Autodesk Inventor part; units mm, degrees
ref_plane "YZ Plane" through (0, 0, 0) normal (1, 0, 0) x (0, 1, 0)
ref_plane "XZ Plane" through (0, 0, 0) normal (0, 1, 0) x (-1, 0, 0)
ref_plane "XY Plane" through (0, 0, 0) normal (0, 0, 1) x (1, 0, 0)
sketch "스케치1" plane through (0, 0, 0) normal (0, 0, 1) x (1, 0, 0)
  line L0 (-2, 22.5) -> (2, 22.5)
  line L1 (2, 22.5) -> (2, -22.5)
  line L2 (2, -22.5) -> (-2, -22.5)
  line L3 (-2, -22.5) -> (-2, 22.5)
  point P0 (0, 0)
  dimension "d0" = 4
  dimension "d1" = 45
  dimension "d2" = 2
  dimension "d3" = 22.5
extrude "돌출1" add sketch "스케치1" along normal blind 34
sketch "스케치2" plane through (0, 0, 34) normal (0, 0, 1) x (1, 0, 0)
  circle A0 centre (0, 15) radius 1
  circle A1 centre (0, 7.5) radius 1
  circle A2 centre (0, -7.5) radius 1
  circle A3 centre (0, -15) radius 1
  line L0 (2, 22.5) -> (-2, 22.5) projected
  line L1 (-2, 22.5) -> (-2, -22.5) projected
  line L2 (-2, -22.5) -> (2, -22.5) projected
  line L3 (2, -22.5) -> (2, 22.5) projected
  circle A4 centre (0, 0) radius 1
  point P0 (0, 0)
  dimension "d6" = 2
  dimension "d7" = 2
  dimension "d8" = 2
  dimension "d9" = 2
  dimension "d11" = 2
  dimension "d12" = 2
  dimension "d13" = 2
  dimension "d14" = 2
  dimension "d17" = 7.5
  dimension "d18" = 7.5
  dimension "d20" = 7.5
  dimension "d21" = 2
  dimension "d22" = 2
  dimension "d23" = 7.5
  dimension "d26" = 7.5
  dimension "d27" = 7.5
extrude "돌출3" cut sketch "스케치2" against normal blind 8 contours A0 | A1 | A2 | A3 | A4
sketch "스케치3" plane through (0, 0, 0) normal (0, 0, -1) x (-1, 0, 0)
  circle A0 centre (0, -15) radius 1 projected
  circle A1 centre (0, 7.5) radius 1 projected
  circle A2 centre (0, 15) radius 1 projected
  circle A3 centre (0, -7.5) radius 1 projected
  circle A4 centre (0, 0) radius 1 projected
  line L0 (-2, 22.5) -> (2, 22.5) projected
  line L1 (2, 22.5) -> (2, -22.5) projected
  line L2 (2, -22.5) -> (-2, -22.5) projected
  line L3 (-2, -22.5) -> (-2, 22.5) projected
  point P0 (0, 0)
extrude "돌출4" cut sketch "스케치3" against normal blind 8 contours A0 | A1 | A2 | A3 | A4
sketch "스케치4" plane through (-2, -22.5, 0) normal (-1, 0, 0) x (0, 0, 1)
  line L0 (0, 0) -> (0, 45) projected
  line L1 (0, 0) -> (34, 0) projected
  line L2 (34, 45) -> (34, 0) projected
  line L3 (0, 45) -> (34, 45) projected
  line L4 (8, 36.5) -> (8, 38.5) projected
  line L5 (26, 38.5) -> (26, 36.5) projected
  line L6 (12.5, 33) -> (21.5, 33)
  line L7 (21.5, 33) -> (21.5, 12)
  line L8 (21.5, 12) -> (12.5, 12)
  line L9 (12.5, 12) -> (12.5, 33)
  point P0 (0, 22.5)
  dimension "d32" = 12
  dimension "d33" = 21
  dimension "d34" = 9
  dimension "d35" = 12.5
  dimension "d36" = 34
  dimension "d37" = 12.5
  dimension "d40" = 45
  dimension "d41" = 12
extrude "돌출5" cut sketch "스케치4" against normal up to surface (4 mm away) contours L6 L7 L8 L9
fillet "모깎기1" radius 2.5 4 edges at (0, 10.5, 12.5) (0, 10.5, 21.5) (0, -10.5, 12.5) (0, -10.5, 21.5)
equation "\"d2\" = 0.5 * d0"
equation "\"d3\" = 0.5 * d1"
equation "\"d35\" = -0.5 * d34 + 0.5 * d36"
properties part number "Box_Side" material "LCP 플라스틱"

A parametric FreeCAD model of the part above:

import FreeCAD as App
import Part
import Sketcher
Q = App.Units.Quantity


def edges_at(feature, points):
    """Names of the edges that pass closest to the given points."""
    edges = feature.Shape.Edges
    near = lambda p: min(range(len(edges)), key=lambda i: edges[i].distToShape(Part.Vertex(*p))[0])
    return sorted({f"Edge{near(p) + 1}" for p in points})


def add_polygon(sketch, points):
    """Adds a closed chain of lines whose ends are joined by coincident constraints."""
    first, n = sketch.GeometryCount, len(points)
    for a, b in zip(points, points[1:] + points[:1]):
        sketch.addGeometry(Part.LineSegment(App.Vector(*a, 0), App.Vector(*b, 0)), False)
    for i in range(n):
        sketch.addConstraint(Sketcher.Constraint("Coincident", first + i, 2, first + (i + 1) % n, 1))

doc = App.newDocument("Part")
body = doc.addObject("PartDesign::Body", "Body")

sketch1 = body.newObject("Sketcher::SketchObject", "Sketch")
sketch1.AttachmentSupport = (doc.getObject("XY_Plane"), [""])
sketch1.MapMode = "FlatFace"
add_polygon(sketch1, [(2, 22.5), (-2, 22.5), (-2, -22.5), (2, -22.5)])
sketch1.addConstraint(Sketcher.Constraint("Horizontal", 0))
sketch1.addConstraint(Sketcher.Constraint("Vertical", 1))
sketch1.addConstraint(Sketcher.Constraint("Horizontal", 2))
sketch1.addConstraint(Sketcher.Constraint("Vertical", 3))
sketch1.addConstraint(Sketcher.Constraint("Symmetric", 0, 2, 2, 2, -1, 1))
sketch1.addConstraint(Sketcher.Constraint("DistanceX", 0, 2, 0, 1, Q("4 mm")))
sketch1.addConstraint(Sketcher.Constraint("DistanceY", 1, 2, 1, 1, Q("45 mm")))
pad1 = body.newObject("PartDesign::Pad", "Pad")
pad1.Profile = sketch1
pad1.Length = 34

sketch2 = body.newObject("Sketcher::SketchObject", "Sketch001")
sketch2.AttachmentSupport = (doc.getObject("XY_Plane"), [""])
sketch2.MapMode = "FlatFace"
sketch2.AttachmentOffset = App.Placement(App.Vector(0, 0, 34), App.Rotation())
sketch2.addGeometry(Part.Circle(App.Vector(0, 15, 0), App.Vector(0, 0, 1), 1), False)
sketch2.addGeometry(Part.Circle(App.Vector(0, 7.5, 0), App.Vector(0, 0, 1), 1), False)
sketch2.addGeometry(Part.Circle(App.Vector(0, -7.5, 0), App.Vector(0, 0, 1), 1), False)
sketch2.addGeometry(Part.Circle(App.Vector(0, -15, 0), App.Vector(0, 0, 1), 1), False)
sketch2.addGeometry(Part.Circle(App.Vector(0, 0, 0), App.Vector(0, 0, 1), 1), False)
sketch2.addConstraint(Sketcher.Constraint("Coincident", 4, 3, -1, 1))
sketch2.addConstraint(Sketcher.Constraint("Equal", 0, 1))
sketch2.addConstraint(Sketcher.Constraint("Equal", 1, 2))
sketch2.addConstraint(Sketcher.Constraint("Equal", 2, 3))
sketch2.addConstraint(Sketcher.Constraint("Equal", 3, 4))
sketch2.addConstraint(Sketcher.Constraint("Symmetric", 1, 3, 2, 3, -1, 1))
sketch2.addConstraint(Sketcher.Constraint("Symmetric", 0, 3, 3, 3, -1, 1))
sketch2.addConstraint(Sketcher.Constraint("PointOnObject", 0, 3, -2))
sketch2.addConstraint(Sketcher.Constraint("PointOnObject", 1, 3, -2))
sketch2.addConstraint(Sketcher.Constraint("Diameter", 0, Q("2 mm")))
sketch2.addConstraint(Sketcher.Constraint("DistanceY", -1, 1, 1, 3, Q("7.5 mm")))
sketch2.addConstraint(Sketcher.Constraint("DistanceY", 1, 3, 0, 3, Q("7.5 mm")))
pocket1 = body.newObject("PartDesign::Pocket", "Pocket")
pocket1.Profile = sketch2
pocket1.Length = 8

sketch3 = body.newObject("Sketcher::SketchObject", "Sketch002")
sketch3.AttachmentSupport = (doc.getObject("XY_Plane"), [""])
sketch3.MapMode = "FlatFace"
sketch3.addGeometry(Part.Circle(App.Vector(0, -15, 0), App.Vector(0, 0, 1), 1), False)
sketch3.addGeometry(Part.Circle(App.Vector(0, 7.5, 0), App.Vector(0, 0, 1), 1), False)
sketch3.addGeometry(Part.Circle(App.Vector(0, 15, 0), App.Vector(0, 0, 1), 1), False)
sketch3.addGeometry(Part.Circle(App.Vector(0, -7.5, 0), App.Vector(0, 0, 1), 1), False)
sketch3.addGeometry(Part.Circle(App.Vector(0, 0, 0), App.Vector(0, 0, 1), 1), False)
sketch3.addConstraint(Sketcher.Constraint("Coincident", 4, 3, -1, 1))
sketch3.addConstraint(Sketcher.Constraint("Equal", 0, 1))
sketch3.addConstraint(Sketcher.Constraint("Equal", 1, 2))
sketch3.addConstraint(Sketcher.Constraint("Equal", 2, 3))
sketch3.addConstraint(Sketcher.Constraint("Equal", 3, 4))
sketch3.addConstraint(Sketcher.Constraint("Symmetric", 0, 3, 2, 3, -1, 1))
sketch3.addConstraint(Sketcher.Constraint("Symmetric", 1, 3, 3, 3, -1, 1))
sketch3.addConstraint(Sketcher.Constraint("PointOnObject", 0, 3, -2))
sketch3.addConstraint(Sketcher.Constraint("PointOnObject", 1, 3, -2))
sketch3.addConstraint(Sketcher.Constraint("Diameter", 0, Q("2 mm")))
sketch3.addConstraint(Sketcher.Constraint("DistanceY", 0, 3, -1, 1, Q("15 mm")))
sketch3.addConstraint(Sketcher.Constraint("DistanceY", 3, 3, 1, 3, Q("15 mm")))
pocket2 = body.newObject("PartDesign::Pocket", "Pocket001")
pocket2.Profile = sketch3
pocket2.Length = 8
pocket2.Reversed = True

sketch4 = body.newObject("Sketcher::SketchObject", "Sketch003")
sketch4.AttachmentSupport = (doc.getObject("YZ_Plane"), [""])
sketch4.MapMode = "FlatFace"
sketch4.AttachmentOffset = App.Placement(App.Vector(0, 0, -2), App.Rotation())
add_polygon(sketch4, [(10.5, 21.5), (10.5, 12.5), (-10.5, 12.5), (-10.5, 21.5)])
sketch4.addConstraint(Sketcher.Constraint("Vertical", 0))
sketch4.addConstraint(Sketcher.Constraint("Horizontal", 1))
sketch4.addConstraint(Sketcher.Constraint("Vertical", 2))
sketch4.addConstraint(Sketcher.Constraint("Horizontal", 3))
sketch4.addConstraint(Sketcher.Constraint("DistanceX", 1, 2, 1, 1, Q("21 mm")))
sketch4.addConstraint(Sketcher.Constraint("DistanceY", 0, 2, 0, 1, Q("9 mm")))
sketch4.addConstraint(Sketcher.Constraint("DistanceY", -1, 1, 0, 2, Q("12.5 mm")))
sketch4.addConstraint(Sketcher.Constraint("DistanceX", -1, 1, 0, 2, Q("10.5 mm")))
pocket3 = body.newObject("PartDesign::Pocket", "Pocket002")
pocket3.Profile = sketch4
pocket3.Length = 4
pocket3.Reversed = True
doc.recompute()

fillet = body.newObject("PartDesign::Fillet", "Fillet")
fillet.Base = (pocket3, edges_at(pocket3, [
    (0, 10.5, 12.5),
    (0, 10.5, 21.5),
    (0, -10.5, 12.5),
    (0, -10.5, 21.5),
]))
fillet.Radius = 2.5

doc.recompute()
